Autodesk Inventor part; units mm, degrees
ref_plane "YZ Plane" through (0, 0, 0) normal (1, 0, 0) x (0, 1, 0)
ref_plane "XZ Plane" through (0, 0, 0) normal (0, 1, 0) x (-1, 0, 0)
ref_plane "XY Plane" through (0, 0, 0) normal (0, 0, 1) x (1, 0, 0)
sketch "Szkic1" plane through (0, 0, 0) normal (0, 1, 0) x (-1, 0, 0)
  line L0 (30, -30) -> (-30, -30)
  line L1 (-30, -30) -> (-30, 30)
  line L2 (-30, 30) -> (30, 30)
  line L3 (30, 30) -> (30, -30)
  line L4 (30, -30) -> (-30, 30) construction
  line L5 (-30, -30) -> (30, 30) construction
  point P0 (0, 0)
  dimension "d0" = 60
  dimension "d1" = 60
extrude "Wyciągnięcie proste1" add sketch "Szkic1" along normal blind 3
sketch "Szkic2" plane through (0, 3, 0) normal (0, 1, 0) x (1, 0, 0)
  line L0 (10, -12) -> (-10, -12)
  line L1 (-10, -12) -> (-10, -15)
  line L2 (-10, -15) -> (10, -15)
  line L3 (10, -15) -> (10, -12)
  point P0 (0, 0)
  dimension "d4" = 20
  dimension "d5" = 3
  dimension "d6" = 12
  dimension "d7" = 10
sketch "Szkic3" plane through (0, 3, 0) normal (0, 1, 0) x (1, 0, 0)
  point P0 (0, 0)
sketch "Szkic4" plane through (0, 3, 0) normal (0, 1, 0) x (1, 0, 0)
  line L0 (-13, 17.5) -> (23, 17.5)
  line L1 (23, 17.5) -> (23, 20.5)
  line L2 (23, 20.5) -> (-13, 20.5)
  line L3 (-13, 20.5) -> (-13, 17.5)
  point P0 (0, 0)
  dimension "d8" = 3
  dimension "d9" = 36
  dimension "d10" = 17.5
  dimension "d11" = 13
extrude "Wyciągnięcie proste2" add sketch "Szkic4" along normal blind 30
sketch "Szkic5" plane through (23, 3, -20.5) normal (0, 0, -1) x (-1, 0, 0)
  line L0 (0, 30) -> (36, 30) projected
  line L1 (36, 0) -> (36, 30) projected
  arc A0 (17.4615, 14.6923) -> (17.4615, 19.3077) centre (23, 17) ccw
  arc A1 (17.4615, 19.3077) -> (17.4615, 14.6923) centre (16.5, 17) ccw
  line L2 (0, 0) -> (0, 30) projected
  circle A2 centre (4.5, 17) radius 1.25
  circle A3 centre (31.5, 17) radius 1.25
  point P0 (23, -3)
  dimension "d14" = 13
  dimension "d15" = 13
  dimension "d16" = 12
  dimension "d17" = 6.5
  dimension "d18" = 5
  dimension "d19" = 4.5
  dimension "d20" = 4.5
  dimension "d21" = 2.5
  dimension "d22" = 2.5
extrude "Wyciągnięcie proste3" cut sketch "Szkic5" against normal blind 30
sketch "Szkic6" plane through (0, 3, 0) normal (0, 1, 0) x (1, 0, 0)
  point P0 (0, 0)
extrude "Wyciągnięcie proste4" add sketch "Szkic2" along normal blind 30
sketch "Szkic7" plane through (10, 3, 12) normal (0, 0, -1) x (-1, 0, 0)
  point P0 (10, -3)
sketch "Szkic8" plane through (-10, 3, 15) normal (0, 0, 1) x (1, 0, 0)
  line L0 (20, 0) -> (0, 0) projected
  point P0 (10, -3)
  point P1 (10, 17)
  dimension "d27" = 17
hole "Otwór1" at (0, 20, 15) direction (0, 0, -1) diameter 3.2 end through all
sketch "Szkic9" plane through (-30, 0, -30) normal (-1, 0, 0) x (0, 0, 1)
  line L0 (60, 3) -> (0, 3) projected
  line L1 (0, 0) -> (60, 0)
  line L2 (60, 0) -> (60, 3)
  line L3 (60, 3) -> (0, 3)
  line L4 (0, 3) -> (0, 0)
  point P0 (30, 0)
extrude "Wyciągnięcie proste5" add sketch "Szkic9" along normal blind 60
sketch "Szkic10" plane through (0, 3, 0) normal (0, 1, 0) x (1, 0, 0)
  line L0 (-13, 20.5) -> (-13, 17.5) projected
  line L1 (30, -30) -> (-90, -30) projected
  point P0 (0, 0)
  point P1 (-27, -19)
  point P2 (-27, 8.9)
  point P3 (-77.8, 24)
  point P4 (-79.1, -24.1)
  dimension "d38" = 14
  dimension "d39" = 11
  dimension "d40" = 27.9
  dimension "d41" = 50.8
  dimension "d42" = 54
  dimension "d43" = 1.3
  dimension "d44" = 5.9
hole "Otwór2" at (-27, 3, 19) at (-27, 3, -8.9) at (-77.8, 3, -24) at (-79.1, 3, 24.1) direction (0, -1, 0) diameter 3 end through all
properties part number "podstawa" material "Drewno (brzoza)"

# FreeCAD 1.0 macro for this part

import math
import FreeCAD as App
import Part
import Sketcher

doc = App.newDocument("Part")
body = doc.addObject("PartDesign::Body", "Body")

sketch1 = doc.addObject("Sketcher::SketchObject", "Sketch")
body.addObject(sketch1)
sketch1.AttachmentSupport = (doc.XZ_Plane, [""])
sketch1.MapMode = "FlatFace"
sketch1.addGeometry([
    Part.LineSegment(App.Vector(30, -30, 0), App.Vector(-30, -30, 0)),
    Part.LineSegment(App.Vector(-30, -30, 0), App.Vector(-30, 30, 0)),
    Part.LineSegment(App.Vector(-30, 30, 0), App.Vector(30, 30, 0)),
    Part.LineSegment(App.Vector(30, 30, 0), App.Vector(30, -30, 0)),
], False)
sketch1.addConstraint([
    Sketcher.Constraint("Coincident", 0, 2, 1, 1),
    Sketcher.Constraint("Coincident", 1, 2, 2, 1),
    Sketcher.Constraint("Coincident", 2, 2, 3, 1),
    Sketcher.Constraint("Coincident", 3, 2, 0, 1),
    Sketcher.Constraint("Horizontal", 0),
    Sketcher.Constraint("Vertical", 1),
    Sketcher.Constraint("Horizontal", 2),
    Sketcher.Constraint("Vertical", 3),
    Sketcher.Constraint("Symmetric", 0, 2, 2, 2, -1, 1),
    Sketcher.Constraint("Equal", 2, 1),
    Sketcher.Constraint("DistanceX", 0, 2, 0, 1, 60.0),
])
pad1 = doc.addObject("PartDesign::Pad", "Pad")
body.addObject(pad1)
pad1.Profile = sketch1
pad1.Length = 3
pad1.Reversed = True

sketch2 = doc.addObject("Sketcher::SketchObject", "Sketch001")
body.addObject(sketch2)
sketch2.AttachmentSupport = (doc.XZ_Plane, [""])
sketch2.MapMode = "FlatFace"
sketch2.AttachmentOffset = App.Placement(App.Vector(0, 0, -3), App.Rotation())
sketch2.addGeometry([
    Part.LineSegment(App.Vector(-13, -20.5, 0), App.Vector(-13, -17.5, 0)),
    Part.LineSegment(App.Vector(-13, -17.5, 0), App.Vector(23, -17.5, 0)),
    Part.LineSegment(App.Vector(23, -17.5, 0), App.Vector(23, -20.5, 0)),
    Part.LineSegment(App.Vector(23, -20.5, 0), App.Vector(-13, -20.5, 0)),
], False)
sketch2.addConstraint([
    Sketcher.Constraint("Coincident", 0, 2, 1, 1),
    Sketcher.Constraint("Coincident", 1, 2, 2, 1),
    Sketcher.Constraint("Coincident", 2, 2, 3, 1),
    Sketcher.Constraint("Coincident", 3, 2, 0, 1),
    Sketcher.Constraint("Vertical", 0),
    Sketcher.Constraint("Horizontal", 1),
    Sketcher.Constraint("Vertical", 2),
    Sketcher.Constraint("Horizontal", 3),
    Sketcher.Constraint("DistanceX", 1, 1, 1, 2, 36.0),
    Sketcher.Constraint("DistanceY", 0, 1, 0, 2, 3.0),
    Sketcher.Constraint("DistanceX", 0, 2, -1, 1, 13.0),
    Sketcher.Constraint("DistanceY", 0, 2, -1, 1, 17.5),
])
pad2 = doc.addObject("PartDesign::Pad", "Pad001")
body.addObject(pad2)
pad2.Profile = sketch2
pad2.Length = 30
pad2.Reversed = True

sketch3 = doc.addObject("Sketcher::SketchObject", "Sketch002")
body.addObject(sketch3)
sketch3.AttachmentSupport = (doc.XY_Plane, [""])
sketch3.MapMode = "FlatFace"
sketch3.AttachmentOffset = App.Placement(App.Vector(0, 0, -20.5), App.Rotation())
sketch3.addGeometry([
    Part.ArcOfCircle(Part.Circle(App.Vector(6.5, 20, 0), App.Vector(0, 0, 1), 2.5), math.radians(-113), math.radians(113)),
    Part.ArcOfCircle(Part.Circle(App.Vector(0, 20, 0), App.Vector(0, 0, 1), 6), math.radians(23), math.radians(337)),
    Part.Circle(App.Vector(18.5, 20, 0), App.Vector(0, 0, 1), 1.2),
    Part.Circle(App.Vector(-8.5, 20, 0), App.Vector(0, 0, 1), 1.2),
], False)
sketch3.addConstraint([
    Sketcher.Constraint("Coincident", 0, 1, 1, 2),
    Sketcher.Constraint("Coincident", 1, 1, 0, 2),
    Sketcher.Constraint("Equal", 2, 3),
    Sketcher.Constraint("PointOnObject", 1, 3, -2),
    Sketcher.Constraint("Horizontal", 0, 3, 1, 3),
    Sketcher.Constraint("Horizontal", 1, 3, 2, 3),
    Sketcher.Constraint("Horizontal", 2, 3, 3, 3),
    Sketcher.Constraint("Radius", 1, 6.0),
    Sketcher.Constraint("Diameter", 2, 2.5),
    Sketcher.Constraint("Radius", 0, 2.5),
    Sketcher.Constraint("DistanceX", 0, 3, 2, 3, 12.0),
    Sketcher.Constraint("DistanceX", -1, 1, 0, 3, 6.5),
    Sketcher.Constraint("DistanceY", -1, 1, 0, 3, 20.0),
    Sketcher.Constraint("DistanceX", 3, 3, 0, 3, 15.0),
])
pocket1 = doc.addObject("PartDesign::Pocket", "Pocket")
body.addObject(pocket1)
pocket1.Profile = sketch3
pocket1.Length = 30
pocket1.Reversed = True

sketch4 = doc.addObject("Sketcher::SketchObject", "Sketch003")
body.addObject(sketch4)
sketch4.AttachmentSupport = (doc.XZ_Plane, [""])
sketch4.MapMode = "FlatFace"
sketch4.AttachmentOffset = App.Placement(App.Vector(0, 0, -3), App.Rotation())
sketch4.addGeometry([
    Part.LineSegment(App.Vector(10, 15, 0), App.Vector(10, 12, 0)),
    Part.LineSegment(App.Vector(10, 12, 0), App.Vector(-10, 12, 0)),
    Part.LineSegment(App.Vector(-10, 12, 0), App.Vector(-10, 15, 0)),
    Part.LineSegment(App.Vector(-10, 15, 0), App.Vector(10, 15, 0)),
], False)
sketch4.addConstraint([
    Sketcher.Constraint("Coincident", 0, 2, 1, 1),
    Sketcher.Constraint("Coincident", 1, 2, 2, 1),
    Sketcher.Constraint("Coincident", 2, 2, 3, 1),
    Sketcher.Constraint("Coincident", 3, 2, 0, 1),
    Sketcher.Constraint("Vertical", 0),
    Sketcher.Constraint("Horizontal", 1),
    Sketcher.Constraint("Vertical", 2),
    Sketcher.Constraint("Horizontal", 3),
    Sketcher.Constraint("DistanceX", 1, 2, 1, 1, 20.0),
    Sketcher.Constraint("DistanceY", 0, 2, 0, 1, 3.0),
    Sketcher.Constraint("DistanceX", -1, 1, 0, 2, 10.0),
    Sketcher.Constraint("DistanceY", -1, 1, 0, 2, 12.0),
])
pad3 = doc.addObject("PartDesign::Pad", "Pad002")
body.addObject(pad3)
pad3.Profile = sketch4
pad3.Length = 30
pad3.Reversed = True

sketch5 = doc.addObject("Sketcher::SketchObject", "Sketch004")
body.addObject(sketch5)
sketch5.AttachmentSupport = (doc.XY_Plane, [""])
sketch5.MapMode = "FlatFace"
sketch5.AttachmentOffset = App.Placement(App.Vector(0, 0, 15), App.Rotation())
sketch5.addGeometry(Part.Circle(App.Vector(0, 20, 0), App.Vector(0, 0, 1), 1.6), False)
sketch5.addConstraint([
    Sketcher.Constraint("PointOnObject", 0, 3, -2),
    Sketcher.Constraint("Diameter", 0, 3.2),
    Sketcher.Constraint("DistanceY", -1, 1, 0, 3, 20.0),
])
doc.recompute()
hole = doc.addObject("PartDesign::Hole", "Hole")
body.addObject(hole)
hole.Profile = sketch5
hole.ThreadType = "None"
hole.Diameter = 3.2
hole.DepthType = "ThroughAll"

sketch6 = doc.addObject("Sketcher::SketchObject", "Sketch005")
body.addObject(sketch6)
sketch6.AttachmentSupport = (doc.YZ_Plane, [""])
sketch6.MapMode = "FlatFace"
sketch6.AttachmentOffset = App.Placement(App.Vector(0, 0, -30), App.Rotation())
sketch6.addGeometry([
    Part.LineSegment(App.Vector(0, 30, 0), App.Vector(3, 30, 0)),
    Part.LineSegment(App.Vector(3, 30, 0), App.Vector(3, -30, 0)),
    Part.LineSegment(App.Vector(3, -30, 0), App.Vector(0, -30, 0)),
    Part.LineSegment(App.Vector(0, -30, 0), App.Vector(0, 30, 0)),
], False)
sketch6.addConstraint([
    Sketcher.Constraint("Coincident", 0, 2, 1, 1),
    Sketcher.Constraint("Coincident", 1, 2, 2, 1),
    Sketcher.Constraint("Coincident", 2, 2, 3, 1),
    Sketcher.Constraint("Coincident", 3, 2, 0, 1),
    Sketcher.Constraint("Horizontal", 0),
    Sketcher.Constraint("Vertical", 1),
    Sketcher.Constraint("Horizontal", 2),
    Sketcher.Constraint("Vertical", 3),
    Sketcher.Constraint("Symmetric", 2, 2, 3, 2, -1, 1),
    Sketcher.Constraint("DistanceX", 0, 1, 0, 2, 3.0),
    Sketcher.Constraint("DistanceY", 1, 2, 1, 1, 60.0),
])
pad4 = doc.addObject("PartDesign::Pad", "Pad003")
body.addObject(pad4)
pad4.Profile = sketch6
pad4.Length = 60
pad4.Reversed = True

sketch7 = doc.addObject("Sketcher::SketchObject", "Sketch006")
body.addObject(sketch7)
sketch7.AttachmentSupport = (doc.XZ_Plane, [""])
sketch7.MapMode = "FlatFace"
sketch7.AttachmentOffset = App.Placement(App.Vector(0, 0, -3), App.Rotation())
sketch7.addGeometry([
    Part.Circle(App.Vector(-27, 19, 0), App.Vector(0, 0, 1), 1.5),
    Part.Circle(App.Vector(-27, -8.9, 0), App.Vector(0, 0, 1), 1.5),
    Part.Circle(App.Vector(-77.8, -24, 0), App.Vector(0, 0, 1), 1.5),
    Part.Circle(App.Vector(-79.1, 24.1, 0), App.Vector(0, 0, 1), 1.5),
], False)
sketch7.addConstraint([
    Sketcher.Constraint("Equal", 0, 1),
    Sketcher.Constraint("Equal", 1, 2),
    Sketcher.Constraint("Equal", 2, 3),
    Sketcher.Constraint("Vertical", 0, 3, 1, 3),
    Sketcher.Constraint("Diameter", 0, 3.0),
    Sketcher.Constraint("DistanceX", 0, 3, -1, 1, 27.0),
    Sketcher.Constraint("DistanceY", -1, 1, 0, 3, 19.0),
    Sketcher.Constraint("DistanceY", 2, 3, -1, 1, 24.0),
    Sketcher.Constraint("DistanceY", 1, 3, 3, 3, 33.0),
    Sketcher.Constraint("DistanceY", 1, 3, -1, 1, 8.9),
    Sketcher.Constraint("DistanceX", 2, 3, -1, 1, 77.8),
    Sketcher.Constraint("DistanceX", 3, 3, -1, 1, 79.1),
])
doc.recompute()
hole2 = doc.addObject("PartDesign::Hole", "Hole001")
body.addObject(hole2)
hole2.Profile = sketch7
hole2.ThreadType = "None"
hole2.Diameter = 3
hole2.DepthType = "ThroughAll"
hole2.Reversed = True

doc.recompute()
